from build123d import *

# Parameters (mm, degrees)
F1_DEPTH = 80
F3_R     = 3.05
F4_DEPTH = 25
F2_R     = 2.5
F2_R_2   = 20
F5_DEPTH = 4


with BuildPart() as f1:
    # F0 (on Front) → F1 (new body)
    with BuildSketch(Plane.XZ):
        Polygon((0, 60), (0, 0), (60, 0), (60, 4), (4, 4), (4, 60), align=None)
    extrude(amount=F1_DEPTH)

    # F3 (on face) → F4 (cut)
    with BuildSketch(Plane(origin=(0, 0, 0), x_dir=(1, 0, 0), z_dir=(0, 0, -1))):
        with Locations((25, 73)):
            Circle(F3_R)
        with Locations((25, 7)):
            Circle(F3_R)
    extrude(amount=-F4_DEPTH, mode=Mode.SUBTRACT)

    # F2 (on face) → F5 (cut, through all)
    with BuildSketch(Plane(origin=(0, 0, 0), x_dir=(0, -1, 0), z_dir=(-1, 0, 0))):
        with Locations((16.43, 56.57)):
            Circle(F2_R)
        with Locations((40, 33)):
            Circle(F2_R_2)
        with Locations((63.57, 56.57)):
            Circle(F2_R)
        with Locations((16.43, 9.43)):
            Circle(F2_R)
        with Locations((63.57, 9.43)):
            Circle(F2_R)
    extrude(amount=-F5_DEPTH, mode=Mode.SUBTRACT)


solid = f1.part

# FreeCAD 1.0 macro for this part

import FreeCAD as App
import Part
import Sketcher

V = App.Vector
Q = App.Units.Quantity


def add_polygon(sketch, points):
    """Adds a closed chain of lines whose ends are joined by coincident constraints."""
    first, n = sketch.GeometryCount, len(points)
    for a, b in zip(points, points[1:] + points[:1]):
        sketch.addGeometry(Part.LineSegment(App.Vector(*a, 0), App.Vector(*b, 0)), False)
    for i in range(n):
        sketch.addConstraint(Sketcher.Constraint("Coincident", first + i, 2, first + (i + 1) % n, 1))

doc = App.newDocument("Part")
params = doc.addObject("Spreadsheet::Sheet", "Params")
for row, (alias, value) in enumerate([
    ("sketch1_width", "60 mm"),
    ("sketch1_width2", "56 mm"),
    ("pad1_length", "80 mm"),
    ("sketch2_diameter", "6.1 mm"),
    ("pocket1_length", "25 mm"),
    ("sketch3_diameter", "5 mm"),
    ("sketch3_diameter2", "40 mm"),
], start=1):
    params.set(f"A{row}", alias)
    params.set(f"B{row}", "=" + value)
    params.setAlias(f"B{row}", alias)

body = doc.addObject("PartDesign::Body", "Body")

# Sketch on XZ plane
sketch1 = doc.addObject("Sketcher::SketchObject", "Sketch")
body.addObject(sketch1)
sketch1.AttachmentSupport = (doc.XZ_Plane, [""])
sketch1.MapMode = "FlatFace"
add_polygon(sketch1, [(0, 60), (0, 0), (60, 0), (60, 4), (4, 4), (4, 60)])  # lines 0-5
sketch1.addConstraint([
    Sketcher.Constraint("Vertical", 0),
    Sketcher.Constraint("Horizontal", 1),
    Sketcher.Constraint("Vertical", 2),
    Sketcher.Constraint("Horizontal", 3),
    Sketcher.Constraint("Vertical", 4),
    Sketcher.Constraint("Horizontal", 5),
    Sketcher.Constraint("Coincident", 0, 2, -1, 1),
    Sketcher.Constraint("Equal", 1, 0),
    Sketcher.Constraint("Equal", 5, 2),
    Sketcher.Constraint("DistanceX", 1, 1, 1, 2, Q("60 mm")),
    Sketcher.Constraint("DistanceX", 3, 2, 3, 1, Q("56 mm")),
])
sketch1.setExpression("Constraints[15]", "Params.sketch1_width")
sketch1.setExpression("Constraints[16]", "Params.sketch1_width2")
pad1 = doc.addObject("PartDesign::Pad", "Pad")
body.addObject(pad1)
pad1.Profile = sketch1
pad1.setExpression("Length", "Params.pad1_length")

# Sketch on XY plane
sketch2 = doc.addObject("Sketcher::SketchObject", "Sketch001")
body.addObject(sketch2)
sketch2.AttachmentSupport = (doc.XY_Plane, [""])
sketch2.MapMode = "FlatFace"
sketch2.addGeometry([
    Part.Circle(V(25, -73, 0), V(0, 0, 1), 3),
    Part.Circle(V(25, -7, 0), V(0, 0, 1), 3),
], False)
sketch2.addConstraint([
    Sketcher.Constraint("Equal", 0, 1),
    Sketcher.Constraint("Vertical", 0, 3, 1, 3),
    Sketcher.Constraint("Diameter", 0, Q("6.1 mm")),
    Sketcher.Constraint("DistanceX", -1, 1, 0, 3, Q("25 mm")),
    Sketcher.Constraint("DistanceY", 0, 3, -1, 1, Q("73 mm")),
    Sketcher.Constraint("DistanceY", 1, 3, -1, 1, Q("7 mm")),
])
sketch2.setExpression("Constraints[2]", "Params.sketch2_diameter")
pocket1 = doc.addObject("PartDesign::Pocket", "Pocket")
body.addObject(pocket1)
pocket1.Profile = sketch2
pocket1.setExpression("Length", "Params.pocket1_length")
pocket1.Reversed = True

# Sketch on YZ plane
sketch3 = doc.addObject("Sketcher::SketchObject", "Sketch002")
body.addObject(sketch3)
sketch3.AttachmentSupport = (doc.YZ_Plane, [""])
sketch3.MapMode = "FlatFace"
sketch3.addGeometry([
    Part.Circle(V(-16.4, 56.6, 0), V(0, 0, 1), 2.5),  # 0
    Part.Circle(V(-40, 33, 0), V(0, 0, 1), 20),  # 1
    Part.Circle(V(-63.6, 56.6, 0), V(0, 0, 1), 2.5),  # 2
    Part.Circle(V(-16.4, 9.4, 0), V(0, 0, 1), 2.5),  # 3
    Part.Circle(V(-63.6, 9.4, 0), V(0, 0, 1), 2.5),  # 4
], False)
sketch3.addConstraint([
    Sketcher.Constraint("Equal", 0, 2),
    Sketcher.Constraint("Equal", 2, 3),
    Sketcher.Constraint("Equal", 3, 4),
    Sketcher.Constraint("Horizontal", 0, 3, 2, 3),
    Sketcher.Constraint("Horizontal", 3, 3, 4, 3),
    Sketcher.Constraint("Vertical", 0, 3, 3, 3),
    Sketcher.Constraint("Vertical", 2, 3, 4, 3),
    Sketcher.Constraint("Diameter", 0, Q("5 mm")),
    Sketcher.Constraint("Diameter", 1, Q("40 mm")),
    Sketcher.Constraint("DistanceX", 1, 3, -1, 1, Q("40 mm")),
    Sketcher.Constraint("DistanceY", -1, 1, 1, 3, Q("33 mm")),
    Sketcher.Constraint("DistanceX", 0, 3, -1, 1, Q("16.43 mm")),
    Sketcher.Constraint("DistanceY", -1, 1, 0, 3, Q("56.57 mm")),
    Sketcher.Constraint("DistanceX", 2, 3, -1, 1, Q("63.57 mm")),
    Sketcher.Constraint("DistanceY", -1, 1, 3, 3, Q("9.43 mm")),
])
sketch3.setExpression("Constraints[7]", "Params.sketch3_diameter")
sketch3.setExpression("Constraints[8]", "Params.sketch3_diameter2")
pocket2 = doc.addObject("PartDesign::Pocket", "Pocket001")
body.addObject(pocket2)
pocket2.Profile = sketch3
pocket2.Type = "ThroughAll"
pocket2.Reversed = True

doc.recompute()
